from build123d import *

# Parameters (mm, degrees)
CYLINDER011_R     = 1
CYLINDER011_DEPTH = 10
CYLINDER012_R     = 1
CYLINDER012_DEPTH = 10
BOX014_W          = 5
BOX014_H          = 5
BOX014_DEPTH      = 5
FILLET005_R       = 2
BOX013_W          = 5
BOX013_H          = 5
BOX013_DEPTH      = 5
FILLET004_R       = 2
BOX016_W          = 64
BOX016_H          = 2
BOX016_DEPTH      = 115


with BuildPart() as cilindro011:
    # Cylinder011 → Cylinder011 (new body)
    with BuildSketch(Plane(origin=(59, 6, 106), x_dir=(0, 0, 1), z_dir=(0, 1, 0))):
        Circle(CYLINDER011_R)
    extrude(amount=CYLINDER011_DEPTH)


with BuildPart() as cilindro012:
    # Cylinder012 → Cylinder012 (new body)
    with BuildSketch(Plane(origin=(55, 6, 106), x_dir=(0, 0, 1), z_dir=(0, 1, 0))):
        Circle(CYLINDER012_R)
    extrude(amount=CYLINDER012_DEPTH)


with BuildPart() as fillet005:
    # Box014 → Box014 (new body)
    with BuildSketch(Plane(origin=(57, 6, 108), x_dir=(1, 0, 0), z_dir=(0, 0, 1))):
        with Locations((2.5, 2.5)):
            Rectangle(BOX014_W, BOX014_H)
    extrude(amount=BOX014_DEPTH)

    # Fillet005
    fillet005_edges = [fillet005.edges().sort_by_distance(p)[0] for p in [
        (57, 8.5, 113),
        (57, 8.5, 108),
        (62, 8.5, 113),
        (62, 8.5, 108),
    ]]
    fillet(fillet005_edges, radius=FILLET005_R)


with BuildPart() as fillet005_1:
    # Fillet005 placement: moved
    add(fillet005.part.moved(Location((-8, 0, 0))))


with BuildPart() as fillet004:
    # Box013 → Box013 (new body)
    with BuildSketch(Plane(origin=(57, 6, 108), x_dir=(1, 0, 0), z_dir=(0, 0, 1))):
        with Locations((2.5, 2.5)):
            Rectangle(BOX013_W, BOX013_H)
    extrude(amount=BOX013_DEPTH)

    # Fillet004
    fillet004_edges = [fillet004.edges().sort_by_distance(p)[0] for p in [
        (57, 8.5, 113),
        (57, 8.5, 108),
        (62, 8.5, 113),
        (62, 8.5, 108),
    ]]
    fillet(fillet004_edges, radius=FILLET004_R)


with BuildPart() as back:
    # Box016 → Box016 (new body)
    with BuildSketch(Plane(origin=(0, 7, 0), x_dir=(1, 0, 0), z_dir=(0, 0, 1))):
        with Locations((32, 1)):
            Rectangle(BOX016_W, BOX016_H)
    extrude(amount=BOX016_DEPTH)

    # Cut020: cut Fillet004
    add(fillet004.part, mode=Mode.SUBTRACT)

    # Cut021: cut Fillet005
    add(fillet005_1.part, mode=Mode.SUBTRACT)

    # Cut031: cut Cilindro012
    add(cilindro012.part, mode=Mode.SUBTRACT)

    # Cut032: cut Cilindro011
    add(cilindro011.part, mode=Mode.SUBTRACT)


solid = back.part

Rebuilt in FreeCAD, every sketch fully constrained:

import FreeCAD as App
import Part
import Sketcher
from FreeCAD import Vector
Q = App.Units.Quantity


def edges_at(feature, points):
    """Names of the edges that pass closest to the given points."""
    edges = feature.Shape.Edges
    near = lambda p: min(range(len(edges)), key=lambda i: edges[i].distToShape(Part.Vertex(*p))[0])
    return sorted({f"Edge{near(p) + 1}" for p in points})


def add_polygon(sketch, points):
    """Adds a closed chain of lines whose ends are joined by coincident constraints."""
    first, n = sketch.GeometryCount, len(points)
    for a, b in zip(points, points[1:] + points[:1]):
        sketch.addGeometry(Part.LineSegment(App.Vector(*a, 0), App.Vector(*b, 0)), False)
    for i in range(n):
        sketch.addConstraint(Sketcher.Constraint("Coincident", first + i, 2, first + (i + 1) % n, 1))

doc = App.newDocument("Part")
params = doc.addObject("Spreadsheet::Sheet", "Params")
for row, (alias, value) in enumerate([
    ("sketch1_diameter", "2 mm"),
    ("pad1_length", "10 mm"),
    ("sketch2_diameter", "2 mm"),
    ("pad2_length", "10 mm"),
    ("sketch3_width", "5 mm"),
    ("pad3_length", "5 mm"),
    ("fillet_radius", "2 mm"),
    ("sketch4_width", "5 mm"),
    ("pad4_length", "5 mm"),
    ("fillet2_radius", "2 mm"),
    ("sketch5_width", "64 mm"),
    ("sketch5_height", "2 mm"),
    ("pad5_length", "115 mm"),
], start=1):
    params.set(f"A{row}", alias)
    params.set(f"B{row}", "=" + value)
    params.setAlias(f"B{row}", alias)

body = doc.addObject("PartDesign::Body", "Body")

# Sketch on XZ plane
sketch1 = body.newObject("Sketcher::SketchObject", "Sketch")
sketch1.AttachmentSupport = (doc.getObject("XZ_Plane"), [""])
sketch1.MapMode = "FlatFace"
sketch1.AttachmentOffset = App.Placement(Vector(0, 0, -6), App.Rotation())
sketch1.addGeometry(Part.Circle(Vector(59, 106, 0), Vector(0, 0, 1), 1), False)
sketch1.addConstraint([
    Sketcher.Constraint("Diameter", 0, Q("2 mm")),
    Sketcher.Constraint("DistanceX", -1, 1, 0, 3, Q("59 mm")),
    Sketcher.Constraint("DistanceY", -1, 1, 0, 3, Q("106 mm")),
])
sketch1.setExpression("Constraints[0]", "Params.sketch1_diameter")
pad1 = body.newObject("PartDesign::Pad", "Pad")
pad1.Profile = sketch1
pad1.setExpression("Length", "Params.pad1_length")
pad1.Reversed = True
body2 = doc.addObject("PartDesign::Body", "Body001")

# Sketch on XZ plane
sketch2 = body2.newObject("Sketcher::SketchObject", "Sketch001")
sketch2.AttachmentSupport = (doc.getObject("XZ_Plane001"), [""])
sketch2.MapMode = "FlatFace"
sketch2.AttachmentOffset = App.Placement(Vector(0, 0, -6), App.Rotation())
sketch2.addGeometry(Part.Circle(Vector(55, 106, 0), Vector(0, 0, 1), 1), False)
sketch2.addConstraint([
    Sketcher.Constraint("Diameter", 0, Q("2 mm")),
    Sketcher.Constraint("DistanceX", -1, 1, 0, 3, Q("55 mm")),
    Sketcher.Constraint("DistanceY", -1, 1, 0, 3, Q("106 mm")),
])
sketch2.setExpression("Constraints[0]", "Params.sketch2_diameter")
pad2 = body2.newObject("PartDesign::Pad", "Pad001")
pad2.Profile = sketch2
pad2.setExpression("Length", "Params.pad2_length")
pad2.Reversed = True
body3 = doc.addObject("PartDesign::Body", "Body002")

# Sketch on XY plane
sketch3 = body3.newObject("Sketcher::SketchObject", "Sketch002")
sketch3.AttachmentSupport = (doc.getObject("XY_Plane002"), [""])
sketch3.MapMode = "FlatFace"
sketch3.AttachmentOffset = App.Placement(Vector(0, 0, 108), App.Rotation())
add_polygon(sketch3, [(57, 11), (57, 6), (62, 6), (62, 11)])  # lines 0-3
sketch3.addConstraint([
    Sketcher.Constraint("Vertical", 0),
    Sketcher.Constraint("Horizontal", 1),
    Sketcher.Constraint("Vertical", 2),
    Sketcher.Constraint("Horizontal", 3),
    Sketcher.Constraint("Equal", 3, 0),
    Sketcher.Constraint("DistanceX", 1, 1, 1, 2, Q("5 mm")),
    Sketcher.Constraint("DistanceX", -1, 1, 0, 2, Q("57 mm")),
    Sketcher.Constraint("DistanceY", -1, 1, 0, 2, Q("6 mm")),
])
sketch3.setExpression("Constraints[9]", "Params.sketch3_width")
pad3 = body3.newObject("PartDesign::Pad", "Pad002")
pad3.Profile = sketch3
pad3.setExpression("Length", "Params.pad3_length")
doc.recompute()

fillet = body3.newObject("PartDesign::Fillet", "Fillet")
fillet.Base = (pad3, edges_at(pad3, [
    (57, 8.5, 113),
    (57, 8.5, 108),
    (62, 8.5, 113),
    (62, 8.5, 108),
]))
fillet.setExpression("Radius", "Params.fillet_radius")
body4 = doc.addObject("PartDesign::Body", "Body003")
doc.recompute()

body3.Placement = App.Placement(Vector(-8, 0, 0), App.Rotation(Vector(0, 0, 1), 0))
boolean = body4.newObject("PartDesign::Boolean", "Boolean")
boolean.Type = "Fuse"
boolean.addObjects([body3])
body5 = doc.addObject("PartDesign::Body", "Body004")

# Sketch on XY plane
sketch4 = body5.newObject("Sketcher::SketchObject", "Sketch003")
sketch4.AttachmentSupport = (doc.getObject("XY_Plane004"), [""])
sketch4.MapMode = "FlatFace"
sketch4.AttachmentOffset = App.Placement(Vector(0, 0, 108), App.Rotation())
add_polygon(sketch4, [(57, 11), (57, 6), (62, 6), (62, 11)])  # lines 0-3
sketch4.addConstraint([
    Sketcher.Constraint("Vertical", 0),
    Sketcher.Constraint("Horizontal", 1),
    Sketcher.Constraint("Vertical", 2),
    Sketcher.Constraint("Horizontal", 3),
    Sketcher.Constraint("Equal", 3, 0),
    Sketcher.Constraint("DistanceX", 1, 1, 1, 2, Q("5 mm")),
    Sketcher.Constraint("DistanceX", -1, 1, 0, 2, Q("57 mm")),
    Sketcher.Constraint("DistanceY", -1, 1, 0, 2, Q("6 mm")),
])
sketch4.setExpression("Constraints[9]", "Params.sketch4_width")
pad4 = body5.newObject("PartDesign::Pad", "Pad003")
pad4.Profile = sketch4
pad4.setExpression("Length", "Params.pad4_length")
doc.recompute()

fillet2 = body5.newObject("PartDesign::Fillet", "Fillet001")
fillet2.Base = (pad4, edges_at(pad4, [
    (57, 8.5, 113),
    (57, 8.5, 108),
    (62, 8.5, 113),
    (62, 8.5, 108),
]))
fillet2.setExpression("Radius", "Params.fillet2_radius")
body6 = doc.addObject("PartDesign::Body", "Body005")

# Sketch on XY plane
sketch5 = body6.newObject("Sketcher::SketchObject", "Sketch004")
sketch5.AttachmentSupport = (doc.getObject("XY_Plane005"), [""])
sketch5.MapMode = "FlatFace"
add_polygon(sketch5, [(0, 9), (0, 7), (64, 7), (64, 9)])  # lines 0-3
sketch5.addConstraint([
    Sketcher.Constraint("Vertical", 0),
    Sketcher.Constraint("Horizontal", 1),
    Sketcher.Constraint("Vertical", 2),
    Sketcher.Constraint("Horizontal", 3),
    Sketcher.Constraint("PointOnObject", 0, 2, -2),
    Sketcher.Constraint("DistanceX", 1, 1, 1, 2, Q("64 mm")),
    Sketcher.Constraint("DistanceY", 0, 2, 0, 1, Q("2 mm")),
    Sketcher.Constraint("DistanceY", -1, 1, 0, 2, Q("7 mm")),
])
sketch5.setExpression("Constraints[9]", "Params.sketch5_width")
sketch5.setExpression("Constraints[10]", "Params.sketch5_height")
pad5 = body6.newObject("PartDesign::Pad", "Pad004")
pad5.Profile = sketch5
pad5.setExpression("Length", "Params.pad5_length")
doc.recompute()

boolean2 = body6.newObject("PartDesign::Boolean", "Boolean001")
boolean2.Type = "Cut"
boolean2.addObjects([body5])
doc.recompute()

boolean3 = body6.newObject("PartDesign::Boolean", "Boolean002")
boolean3.Type = "Cut"
boolean3.addObjects([body4])
doc.recompute()

boolean4 = body6.newObject("PartDesign::Boolean", "Boolean003")
boolean4.Type = "Cut"
boolean4.addObjects([body2])
doc.recompute()

boolean5 = body6.newObject("PartDesign::Boolean", "Boolean004")
boolean5.Type = "Cut"
boolean5.addObjects([body])

doc.recompute()
